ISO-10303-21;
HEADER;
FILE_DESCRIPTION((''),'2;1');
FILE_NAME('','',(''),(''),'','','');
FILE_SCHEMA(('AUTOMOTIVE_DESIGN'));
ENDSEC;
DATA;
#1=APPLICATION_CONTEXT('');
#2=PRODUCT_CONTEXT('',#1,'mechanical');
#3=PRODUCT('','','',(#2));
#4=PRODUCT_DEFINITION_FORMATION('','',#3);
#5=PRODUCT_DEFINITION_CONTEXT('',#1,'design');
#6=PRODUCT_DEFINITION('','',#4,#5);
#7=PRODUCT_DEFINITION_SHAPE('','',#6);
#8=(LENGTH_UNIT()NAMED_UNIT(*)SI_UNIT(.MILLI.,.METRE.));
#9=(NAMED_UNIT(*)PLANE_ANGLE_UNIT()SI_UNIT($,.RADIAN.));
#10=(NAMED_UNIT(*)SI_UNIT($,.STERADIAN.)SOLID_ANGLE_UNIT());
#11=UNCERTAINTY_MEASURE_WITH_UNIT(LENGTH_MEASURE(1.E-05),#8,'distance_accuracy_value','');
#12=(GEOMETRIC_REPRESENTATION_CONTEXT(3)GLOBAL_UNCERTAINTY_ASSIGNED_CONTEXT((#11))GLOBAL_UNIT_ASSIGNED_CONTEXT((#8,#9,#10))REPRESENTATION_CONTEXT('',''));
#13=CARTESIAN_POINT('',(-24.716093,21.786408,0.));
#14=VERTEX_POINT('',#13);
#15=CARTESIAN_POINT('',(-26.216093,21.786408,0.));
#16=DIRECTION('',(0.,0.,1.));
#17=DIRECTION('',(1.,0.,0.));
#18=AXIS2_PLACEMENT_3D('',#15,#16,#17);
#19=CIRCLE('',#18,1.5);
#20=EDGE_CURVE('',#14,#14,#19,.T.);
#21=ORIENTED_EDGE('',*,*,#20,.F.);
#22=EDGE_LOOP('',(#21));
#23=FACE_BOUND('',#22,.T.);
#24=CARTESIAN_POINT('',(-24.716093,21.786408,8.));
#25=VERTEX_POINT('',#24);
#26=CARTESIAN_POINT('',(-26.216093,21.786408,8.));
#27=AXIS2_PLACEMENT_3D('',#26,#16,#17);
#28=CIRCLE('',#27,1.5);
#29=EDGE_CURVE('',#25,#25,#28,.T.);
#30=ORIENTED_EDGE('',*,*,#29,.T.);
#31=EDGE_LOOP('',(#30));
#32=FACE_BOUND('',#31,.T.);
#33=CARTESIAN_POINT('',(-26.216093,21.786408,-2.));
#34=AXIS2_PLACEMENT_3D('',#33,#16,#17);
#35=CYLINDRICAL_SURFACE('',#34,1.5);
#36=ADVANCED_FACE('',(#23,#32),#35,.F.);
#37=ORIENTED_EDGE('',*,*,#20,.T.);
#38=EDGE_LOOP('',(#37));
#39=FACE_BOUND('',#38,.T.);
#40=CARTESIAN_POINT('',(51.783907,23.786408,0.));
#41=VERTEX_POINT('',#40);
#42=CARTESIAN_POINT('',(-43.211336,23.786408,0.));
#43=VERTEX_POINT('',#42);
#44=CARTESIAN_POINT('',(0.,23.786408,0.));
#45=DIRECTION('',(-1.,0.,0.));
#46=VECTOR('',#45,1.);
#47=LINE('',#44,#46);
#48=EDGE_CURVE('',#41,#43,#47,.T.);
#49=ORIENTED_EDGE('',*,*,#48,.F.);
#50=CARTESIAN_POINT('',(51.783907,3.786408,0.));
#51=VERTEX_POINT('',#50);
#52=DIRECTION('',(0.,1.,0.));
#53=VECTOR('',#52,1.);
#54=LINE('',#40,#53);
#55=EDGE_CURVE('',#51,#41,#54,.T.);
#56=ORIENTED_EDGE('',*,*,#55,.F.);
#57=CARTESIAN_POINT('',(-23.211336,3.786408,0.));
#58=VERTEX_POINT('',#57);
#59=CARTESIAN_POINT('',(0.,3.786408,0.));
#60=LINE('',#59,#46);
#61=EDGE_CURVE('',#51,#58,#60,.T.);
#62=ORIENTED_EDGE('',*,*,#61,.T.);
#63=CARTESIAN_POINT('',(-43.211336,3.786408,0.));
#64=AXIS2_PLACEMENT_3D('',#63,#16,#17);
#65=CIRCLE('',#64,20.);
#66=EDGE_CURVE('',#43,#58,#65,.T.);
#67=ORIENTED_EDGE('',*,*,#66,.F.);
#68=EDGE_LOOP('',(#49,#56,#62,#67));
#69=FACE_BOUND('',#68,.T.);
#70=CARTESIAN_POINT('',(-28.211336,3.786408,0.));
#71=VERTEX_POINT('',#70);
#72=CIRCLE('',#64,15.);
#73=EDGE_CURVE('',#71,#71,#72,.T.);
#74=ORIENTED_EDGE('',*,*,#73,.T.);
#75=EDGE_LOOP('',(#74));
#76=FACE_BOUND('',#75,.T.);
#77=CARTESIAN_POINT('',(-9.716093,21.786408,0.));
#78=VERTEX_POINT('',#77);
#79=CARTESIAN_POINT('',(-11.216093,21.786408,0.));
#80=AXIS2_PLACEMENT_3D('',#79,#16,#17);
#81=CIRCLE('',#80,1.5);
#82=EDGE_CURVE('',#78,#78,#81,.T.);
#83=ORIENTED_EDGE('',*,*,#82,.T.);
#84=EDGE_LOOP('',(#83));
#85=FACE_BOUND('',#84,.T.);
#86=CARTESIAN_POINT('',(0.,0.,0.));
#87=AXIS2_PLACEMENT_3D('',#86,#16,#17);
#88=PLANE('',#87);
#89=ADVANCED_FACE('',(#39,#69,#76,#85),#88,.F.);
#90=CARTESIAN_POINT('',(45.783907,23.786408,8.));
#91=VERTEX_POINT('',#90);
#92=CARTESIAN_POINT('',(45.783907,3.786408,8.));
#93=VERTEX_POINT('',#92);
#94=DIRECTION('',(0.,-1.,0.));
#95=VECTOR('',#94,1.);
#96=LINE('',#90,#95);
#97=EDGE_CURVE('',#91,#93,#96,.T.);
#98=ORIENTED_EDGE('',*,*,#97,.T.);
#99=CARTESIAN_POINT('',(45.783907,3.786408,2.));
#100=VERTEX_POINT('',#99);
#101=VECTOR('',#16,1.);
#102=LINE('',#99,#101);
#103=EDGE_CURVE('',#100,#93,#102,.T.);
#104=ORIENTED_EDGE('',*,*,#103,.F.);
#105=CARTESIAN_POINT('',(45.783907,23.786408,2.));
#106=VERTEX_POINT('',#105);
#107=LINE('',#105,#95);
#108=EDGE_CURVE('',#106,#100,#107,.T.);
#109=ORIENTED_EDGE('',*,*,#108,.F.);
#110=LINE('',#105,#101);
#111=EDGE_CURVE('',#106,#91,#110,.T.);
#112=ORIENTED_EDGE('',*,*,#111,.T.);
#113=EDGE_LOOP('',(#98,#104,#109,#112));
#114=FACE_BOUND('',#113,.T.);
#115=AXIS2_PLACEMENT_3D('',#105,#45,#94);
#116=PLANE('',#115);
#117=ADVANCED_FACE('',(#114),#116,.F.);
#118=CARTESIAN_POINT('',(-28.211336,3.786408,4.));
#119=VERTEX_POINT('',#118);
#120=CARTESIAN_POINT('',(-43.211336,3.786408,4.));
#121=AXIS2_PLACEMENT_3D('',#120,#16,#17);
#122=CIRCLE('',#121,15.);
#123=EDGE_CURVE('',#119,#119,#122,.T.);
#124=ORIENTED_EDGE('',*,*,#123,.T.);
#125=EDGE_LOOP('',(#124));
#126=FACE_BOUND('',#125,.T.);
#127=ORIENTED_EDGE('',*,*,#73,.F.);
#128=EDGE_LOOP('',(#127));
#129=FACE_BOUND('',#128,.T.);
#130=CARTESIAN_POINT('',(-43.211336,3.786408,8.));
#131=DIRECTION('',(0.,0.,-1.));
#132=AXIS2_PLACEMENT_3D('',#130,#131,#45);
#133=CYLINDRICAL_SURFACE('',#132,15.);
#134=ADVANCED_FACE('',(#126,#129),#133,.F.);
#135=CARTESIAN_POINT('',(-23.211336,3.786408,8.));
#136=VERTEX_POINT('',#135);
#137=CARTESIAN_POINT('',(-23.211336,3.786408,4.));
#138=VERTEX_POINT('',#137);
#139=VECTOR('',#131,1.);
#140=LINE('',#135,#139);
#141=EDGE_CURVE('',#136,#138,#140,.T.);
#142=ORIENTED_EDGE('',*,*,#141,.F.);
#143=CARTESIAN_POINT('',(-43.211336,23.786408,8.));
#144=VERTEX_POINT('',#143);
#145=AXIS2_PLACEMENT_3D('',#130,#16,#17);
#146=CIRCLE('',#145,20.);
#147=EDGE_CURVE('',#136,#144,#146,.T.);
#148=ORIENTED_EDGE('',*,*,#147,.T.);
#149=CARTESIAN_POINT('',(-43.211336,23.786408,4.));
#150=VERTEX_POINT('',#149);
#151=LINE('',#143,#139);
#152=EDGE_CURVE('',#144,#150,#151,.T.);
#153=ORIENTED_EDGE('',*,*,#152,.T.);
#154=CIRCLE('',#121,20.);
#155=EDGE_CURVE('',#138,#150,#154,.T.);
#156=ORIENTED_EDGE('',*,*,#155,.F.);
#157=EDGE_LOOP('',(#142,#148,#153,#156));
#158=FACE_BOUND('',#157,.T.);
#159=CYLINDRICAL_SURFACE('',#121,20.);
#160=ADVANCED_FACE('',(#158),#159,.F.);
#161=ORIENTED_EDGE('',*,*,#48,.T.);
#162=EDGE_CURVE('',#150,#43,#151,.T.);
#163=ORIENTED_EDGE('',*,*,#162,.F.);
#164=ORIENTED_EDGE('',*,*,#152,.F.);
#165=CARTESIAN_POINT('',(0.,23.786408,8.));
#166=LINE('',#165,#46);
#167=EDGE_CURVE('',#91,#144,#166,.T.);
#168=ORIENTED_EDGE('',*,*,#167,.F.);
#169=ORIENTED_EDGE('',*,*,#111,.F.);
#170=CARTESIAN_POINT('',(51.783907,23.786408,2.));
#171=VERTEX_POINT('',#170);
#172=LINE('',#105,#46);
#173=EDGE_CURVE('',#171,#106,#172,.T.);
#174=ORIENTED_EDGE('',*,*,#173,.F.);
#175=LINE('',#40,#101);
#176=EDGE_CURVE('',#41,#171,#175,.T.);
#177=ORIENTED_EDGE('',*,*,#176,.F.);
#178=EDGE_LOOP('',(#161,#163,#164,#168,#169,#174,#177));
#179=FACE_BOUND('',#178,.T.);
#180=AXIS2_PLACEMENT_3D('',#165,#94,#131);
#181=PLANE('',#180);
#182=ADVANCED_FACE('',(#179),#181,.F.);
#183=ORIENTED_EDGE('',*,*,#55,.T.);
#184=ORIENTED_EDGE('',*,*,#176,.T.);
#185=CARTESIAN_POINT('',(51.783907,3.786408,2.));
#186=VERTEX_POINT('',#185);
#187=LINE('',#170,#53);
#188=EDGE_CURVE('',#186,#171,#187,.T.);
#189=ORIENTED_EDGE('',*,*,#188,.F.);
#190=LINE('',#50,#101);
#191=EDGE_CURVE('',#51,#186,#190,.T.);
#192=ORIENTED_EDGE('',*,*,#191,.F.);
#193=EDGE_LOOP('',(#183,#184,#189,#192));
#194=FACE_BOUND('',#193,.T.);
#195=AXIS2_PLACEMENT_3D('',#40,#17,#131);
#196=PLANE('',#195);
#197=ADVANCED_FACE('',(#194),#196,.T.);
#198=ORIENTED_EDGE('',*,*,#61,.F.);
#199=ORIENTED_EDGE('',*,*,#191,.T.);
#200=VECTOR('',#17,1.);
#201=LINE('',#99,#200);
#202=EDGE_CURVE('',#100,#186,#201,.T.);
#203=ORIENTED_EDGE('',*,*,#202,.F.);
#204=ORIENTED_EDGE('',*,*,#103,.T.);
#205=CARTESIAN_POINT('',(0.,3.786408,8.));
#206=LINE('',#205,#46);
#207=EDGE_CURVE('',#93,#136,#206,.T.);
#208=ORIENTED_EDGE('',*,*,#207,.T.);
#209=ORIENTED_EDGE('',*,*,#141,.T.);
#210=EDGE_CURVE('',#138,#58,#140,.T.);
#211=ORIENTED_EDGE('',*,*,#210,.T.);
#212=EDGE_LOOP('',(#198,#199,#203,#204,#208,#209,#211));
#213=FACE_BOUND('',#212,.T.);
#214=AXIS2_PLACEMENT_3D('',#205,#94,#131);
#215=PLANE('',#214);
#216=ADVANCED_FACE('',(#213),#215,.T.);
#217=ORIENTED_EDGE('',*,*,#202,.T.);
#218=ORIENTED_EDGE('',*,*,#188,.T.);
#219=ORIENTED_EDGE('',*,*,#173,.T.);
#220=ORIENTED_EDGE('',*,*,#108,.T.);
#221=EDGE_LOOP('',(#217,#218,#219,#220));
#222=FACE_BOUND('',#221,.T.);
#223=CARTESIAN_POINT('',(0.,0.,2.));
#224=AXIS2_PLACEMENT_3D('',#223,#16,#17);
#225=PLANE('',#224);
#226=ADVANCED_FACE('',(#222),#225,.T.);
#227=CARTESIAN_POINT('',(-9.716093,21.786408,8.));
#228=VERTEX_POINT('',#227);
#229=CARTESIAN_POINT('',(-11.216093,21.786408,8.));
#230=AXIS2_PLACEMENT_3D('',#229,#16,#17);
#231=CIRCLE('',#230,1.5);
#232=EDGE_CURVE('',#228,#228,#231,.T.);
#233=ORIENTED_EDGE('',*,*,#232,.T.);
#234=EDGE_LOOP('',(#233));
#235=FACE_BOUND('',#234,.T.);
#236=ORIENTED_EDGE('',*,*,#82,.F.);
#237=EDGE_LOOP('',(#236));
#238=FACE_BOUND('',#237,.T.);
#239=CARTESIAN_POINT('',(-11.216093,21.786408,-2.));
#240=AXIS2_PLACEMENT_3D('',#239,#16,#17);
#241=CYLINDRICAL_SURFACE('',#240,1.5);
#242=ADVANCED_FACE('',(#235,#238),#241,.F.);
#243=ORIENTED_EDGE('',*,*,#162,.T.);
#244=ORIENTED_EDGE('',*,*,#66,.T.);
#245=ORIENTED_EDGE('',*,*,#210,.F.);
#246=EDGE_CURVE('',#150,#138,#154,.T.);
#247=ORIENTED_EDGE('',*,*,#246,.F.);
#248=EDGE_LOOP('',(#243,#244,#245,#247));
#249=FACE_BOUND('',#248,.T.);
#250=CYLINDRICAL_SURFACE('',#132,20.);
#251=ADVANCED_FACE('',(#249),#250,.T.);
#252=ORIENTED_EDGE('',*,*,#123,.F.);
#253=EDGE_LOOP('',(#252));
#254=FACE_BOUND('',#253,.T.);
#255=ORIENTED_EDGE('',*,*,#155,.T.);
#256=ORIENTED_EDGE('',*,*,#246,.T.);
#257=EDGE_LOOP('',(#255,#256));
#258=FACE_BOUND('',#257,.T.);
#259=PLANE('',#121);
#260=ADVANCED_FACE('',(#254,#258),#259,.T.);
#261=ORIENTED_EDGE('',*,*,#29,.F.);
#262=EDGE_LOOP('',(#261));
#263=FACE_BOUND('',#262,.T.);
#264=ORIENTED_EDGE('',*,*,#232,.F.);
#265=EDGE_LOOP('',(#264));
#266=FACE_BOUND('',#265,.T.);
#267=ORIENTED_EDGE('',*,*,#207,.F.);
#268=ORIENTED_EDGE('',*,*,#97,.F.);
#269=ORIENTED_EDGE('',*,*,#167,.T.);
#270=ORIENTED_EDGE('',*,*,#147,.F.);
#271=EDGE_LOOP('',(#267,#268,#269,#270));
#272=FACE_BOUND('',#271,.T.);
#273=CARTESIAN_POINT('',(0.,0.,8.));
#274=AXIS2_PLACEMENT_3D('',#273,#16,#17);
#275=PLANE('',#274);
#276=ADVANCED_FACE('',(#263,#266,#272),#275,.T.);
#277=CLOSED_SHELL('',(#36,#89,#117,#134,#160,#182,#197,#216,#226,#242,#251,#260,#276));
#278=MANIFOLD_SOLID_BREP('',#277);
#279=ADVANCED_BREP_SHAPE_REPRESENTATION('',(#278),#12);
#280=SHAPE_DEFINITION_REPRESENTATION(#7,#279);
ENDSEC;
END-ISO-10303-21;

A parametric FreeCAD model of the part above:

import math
import FreeCAD as App
import Part
import Sketcher

V = App.Vector

doc = App.newDocument("Part")
body = doc.addObject("PartDesign::Body", "Body")

# Sketch on XY plane
sketch1 = body.newObject("Sketcher::SketchObject", "Sketch")
sketch1.AttachmentSupport = (doc.getObject("XY_Plane"), [""])
sketch1.MapMode = "FlatFace"
sketch1.addGeometry(Part.LineSegment(V(43, 24, 0), V(-43, 24, 0)), False)
sketch1.addGeometry(Part.ArcOfCircle(Part.Circle(V(-43, 4, 0), V(0, 0, 1), 20), math.radians(90), math.radians(360)), False)
sketch1.addGeometry(Part.LineSegment(V(-23, 4, 0), V(43, 4, 0)), False)
sketch1.addGeometry(Part.LineSegment(V(43, 4, 0), V(43, 24, 0)), False)
sketch1.addGeometry(Part.ArcOfCircle(Part.Circle(V(-43, 4, 0), V(0, 0, 1), 15), math.radians(0), math.radians(90)), False)
sketch1.addGeometry(Part.ArcOfCircle(Part.Circle(V(-43, 4, 0), V(0, 0, 1), 15), math.radians(90), math.radians(360)), False)
sketch1.addConstraint(Sketcher.Constraint("Tangent", 0, 2, 1, 1))
sketch1.addConstraint(Sketcher.Constraint("Coincident", 1, 2, 2, 1))
sketch1.addConstraint(Sketcher.Constraint("Coincident", 2, 2, 3, 1))
sketch1.addConstraint(Sketcher.Constraint("Coincident", 3, 2, 0, 1))
sketch1.addConstraint(Sketcher.Constraint("Tangent", 4, 1, 5, 2))
sketch1.addConstraint(Sketcher.Constraint("Coincident", 5, 1, 4, 2))
sketch1.addConstraint(Sketcher.Constraint("Horizontal", 0))
sketch1.addConstraint(Sketcher.Constraint("Horizontal", 2))
sketch1.addConstraint(Sketcher.Constraint("Vertical", 3))
sketch1.addConstraint(Sketcher.Constraint("Coincident", 4, 3, 1, 3))
sketch1.addConstraint(Sketcher.Constraint("Horizontal", 5, 3, 1, 2))
sketch1.addConstraint(Sketcher.Constraint("Horizontal", 2, 2, 4, 1))
sketch1.addConstraint(Sketcher.Constraint("Vertical", 0, 2, 5, 1))
sketch1.addConstraint(Sketcher.Constraint("Radius", 1, 20.0))
sketch1.addConstraint(Sketcher.Constraint("Radius", 4, 15.0))
sketch1.addConstraint(Sketcher.Constraint("DistanceX", 0, 2, 0, 1, 85.825243))
sketch1.addConstraint(Sketcher.Constraint("DistanceX", 1, 3, -1, 1, 43.211336))
sketch1.addConstraint(Sketcher.Constraint("DistanceY", -1, 1, 1, 3, 3.786408))
pad1 = body.newObject("PartDesign::Pad", "Pad")
pad1.Profile = sketch1
pad1.Length = 8

# Sketch on XY plane
sketch2 = body.newObject("Sketcher::SketchObject", "Sketch001")
sketch2.AttachmentSupport = (doc.getObject("XY_Plane"), [""])
sketch2.MapMode = "FlatFace"
sketch2.AttachmentOffset = App.Placement(V(0, 0, 8), App.Rotation())
sketch2.addGeometry(Part.Circle(V(-43, 4, 0), V(0, 0, 1), 20), False)
sketch2.addGeometry(Part.Circle(V(-43, 4, 0), V(0, 0, 1), 15), False)
sketch2.addConstraint(Sketcher.Constraint("Coincident", 1, 3, 0, 3))
sketch2.addConstraint(Sketcher.Constraint("Diameter", 0, 40.0))
sketch2.addConstraint(Sketcher.Constraint("Diameter", 1, 30.0))
sketch2.addConstraint(Sketcher.Constraint("DistanceX", 0, 3, -1, 1, 43.211336))
sketch2.addConstraint(Sketcher.Constraint("DistanceY", -1, 1, 0, 3, 3.786408))
pocket1 = body.newObject("PartDesign::Pocket", "Pocket")
pocket1.Profile = sketch2
pocket1.Length = 4

# Sketch on XY plane
sketch3 = body.newObject("Sketcher::SketchObject", "Sketch002")
sketch3.AttachmentSupport = (doc.getObject("XY_Plane"), [""])
sketch3.MapMode = "FlatFace"
sketch3.AttachmentOffset = App.Placement(V(0, 0, 8), App.Rotation())
sketch3.addGeometry(Part.LineSegment(V(43, 24, 0), V(43, 4, 0)), False)
sketch3.addGeometry(Part.LineSegment(V(43, 4, 0), V(52, 4, 0)), False)
sketch3.addGeometry(Part.LineSegment(V(52, 4, 0), V(52, 24, 0)), False)
sketch3.addGeometry(Part.LineSegment(V(52, 24, 0), V(43, 24, 0)), False)
sketch3.addConstraint(Sketcher.Constraint("Coincident", 0, 2, 1, 1))
sketch3.addConstraint(Sketcher.Constraint("Coincident", 1, 2, 2, 1))
sketch3.addConstraint(Sketcher.Constraint("Coincident", 2, 2, 3, 1))
sketch3.addConstraint(Sketcher.Constraint("Coincident", 3, 2, 0, 1))
sketch3.addConstraint(Sketcher.Constraint("Vertical", 0))
sketch3.addConstraint(Sketcher.Constraint("Horizontal", 1))
sketch3.addConstraint(Sketcher.Constraint("Vertical", 2))
sketch3.addConstraint(Sketcher.Constraint("Horizontal", 3))
sketch3.addConstraint(Sketcher.Constraint("DistanceY", 0, 2, 0, 1, 20.0))
sketch3.addConstraint(Sketcher.Constraint("DistanceX", 1, 1, 1, 2, 9.17))
sketch3.addConstraint(Sketcher.Constraint("DistanceX", -1, 1, 0, 2, 42.613907))
sketch3.addConstraint(Sketcher.Constraint("DistanceY", -1, 1, 0, 2, 3.786408))
pad2 = body.newObject("PartDesign::Pad", "Pad001")
pad2.Profile = sketch3
pad2.Length = 8
pad2.Reversed = True

# Sketch on XY plane
sketch4 = body.newObject("Sketcher::SketchObject", "Sketch003")
sketch4.AttachmentSupport = (doc.getObject("XY_Plane"), [""])
sketch4.MapMode = "FlatFace"
sketch4.AttachmentOffset = App.Placement(V(0, 0, 8), App.Rotation())
sketch4.addGeometry(Part.LineSegment(V(46, 24, 0), V(46, 4, 0)), False)
sketch4.addGeometry(Part.LineSegment(V(46, 4, 0), V(52, 4, 0)), False)
sketch4.addGeometry(Part.LineSegment(V(52, 4, 0), V(52, 24, 0)), False)
sketch4.addGeometry(Part.LineSegment(V(52, 24, 0), V(46, 24, 0)), False)
sketch4.addConstraint(Sketcher.Constraint("Coincident", 0, 2, 1, 1))
sketch4.addConstraint(Sketcher.Constraint("Coincident", 1, 2, 2, 1))
sketch4.addConstraint(Sketcher.Constraint("Coincident", 2, 2, 3, 1))
sketch4.addConstraint(Sketcher.Constraint("Coincident", 3, 2, 0, 1))
sketch4.addConstraint(Sketcher.Constraint("Vertical", 0))
sketch4.addConstraint(Sketcher.Constraint("Horizontal", 1))
sketch4.addConstraint(Sketcher.Constraint("Vertical", 2))
sketch4.addConstraint(Sketcher.Constraint("Horizontal", 3))
sketch4.addConstraint(Sketcher.Constraint("DistanceX", 1, 1, 1, 2, 6.0))
sketch4.addConstraint(Sketcher.Constraint("DistanceY", 0, 2, 0, 1, 20.0))
sketch4.addConstraint(Sketcher.Constraint("DistanceX", -1, 1, 0, 2, 45.783907))
sketch4.addConstraint(Sketcher.Constraint("DistanceY", -1, 1, 0, 2, 3.786408))
pocket2 = body.newObject("PartDesign::Pocket", "Pocket001")
pocket2.Profile = sketch4
pocket2.Length = 6

# Sketch on XY plane
sketch5 = body.newObject("Sketcher::SketchObject", "Sketch004")
sketch5.AttachmentSupport = (doc.getObject("XY_Plane"), [""])
sketch5.MapMode = "FlatFace"
sketch5.AttachmentOffset = App.Placement(V(0, 0, 8), App.Rotation())
sketch5.addGeometry(Part.Circle(V(-26.2, 21.8, 0), V(0, 0, 1), 1.5), False)
sketch5.addGeometry(Part.Circle(V(-11.2, 21.8, 0), V(0, 0, 1), 1.5), False)
sketch5.addConstraint(Sketcher.Constraint("Equal", 0, 1))
sketch5.addConstraint(Sketcher.Constraint("Horizontal", 0, 3, 1, 3))
sketch5.addConstraint(Sketcher.Constraint("Diameter", 0, 3.0))
sketch5.addConstraint(Sketcher.Constraint("DistanceX", 0, 3, 1, 3, 15.0))
sketch5.addConstraint(Sketcher.Constraint("DistanceX", 0, 3, -1, 1, 26.216093))
sketch5.addConstraint(Sketcher.Constraint("DistanceY", -1, 1, 0, 3, 21.786408))
pocket3 = body.newObject("PartDesign::Pocket", "Pocket002")
pocket3.Profile = sketch5
pocket3.Length = 10

doc.recompute()
